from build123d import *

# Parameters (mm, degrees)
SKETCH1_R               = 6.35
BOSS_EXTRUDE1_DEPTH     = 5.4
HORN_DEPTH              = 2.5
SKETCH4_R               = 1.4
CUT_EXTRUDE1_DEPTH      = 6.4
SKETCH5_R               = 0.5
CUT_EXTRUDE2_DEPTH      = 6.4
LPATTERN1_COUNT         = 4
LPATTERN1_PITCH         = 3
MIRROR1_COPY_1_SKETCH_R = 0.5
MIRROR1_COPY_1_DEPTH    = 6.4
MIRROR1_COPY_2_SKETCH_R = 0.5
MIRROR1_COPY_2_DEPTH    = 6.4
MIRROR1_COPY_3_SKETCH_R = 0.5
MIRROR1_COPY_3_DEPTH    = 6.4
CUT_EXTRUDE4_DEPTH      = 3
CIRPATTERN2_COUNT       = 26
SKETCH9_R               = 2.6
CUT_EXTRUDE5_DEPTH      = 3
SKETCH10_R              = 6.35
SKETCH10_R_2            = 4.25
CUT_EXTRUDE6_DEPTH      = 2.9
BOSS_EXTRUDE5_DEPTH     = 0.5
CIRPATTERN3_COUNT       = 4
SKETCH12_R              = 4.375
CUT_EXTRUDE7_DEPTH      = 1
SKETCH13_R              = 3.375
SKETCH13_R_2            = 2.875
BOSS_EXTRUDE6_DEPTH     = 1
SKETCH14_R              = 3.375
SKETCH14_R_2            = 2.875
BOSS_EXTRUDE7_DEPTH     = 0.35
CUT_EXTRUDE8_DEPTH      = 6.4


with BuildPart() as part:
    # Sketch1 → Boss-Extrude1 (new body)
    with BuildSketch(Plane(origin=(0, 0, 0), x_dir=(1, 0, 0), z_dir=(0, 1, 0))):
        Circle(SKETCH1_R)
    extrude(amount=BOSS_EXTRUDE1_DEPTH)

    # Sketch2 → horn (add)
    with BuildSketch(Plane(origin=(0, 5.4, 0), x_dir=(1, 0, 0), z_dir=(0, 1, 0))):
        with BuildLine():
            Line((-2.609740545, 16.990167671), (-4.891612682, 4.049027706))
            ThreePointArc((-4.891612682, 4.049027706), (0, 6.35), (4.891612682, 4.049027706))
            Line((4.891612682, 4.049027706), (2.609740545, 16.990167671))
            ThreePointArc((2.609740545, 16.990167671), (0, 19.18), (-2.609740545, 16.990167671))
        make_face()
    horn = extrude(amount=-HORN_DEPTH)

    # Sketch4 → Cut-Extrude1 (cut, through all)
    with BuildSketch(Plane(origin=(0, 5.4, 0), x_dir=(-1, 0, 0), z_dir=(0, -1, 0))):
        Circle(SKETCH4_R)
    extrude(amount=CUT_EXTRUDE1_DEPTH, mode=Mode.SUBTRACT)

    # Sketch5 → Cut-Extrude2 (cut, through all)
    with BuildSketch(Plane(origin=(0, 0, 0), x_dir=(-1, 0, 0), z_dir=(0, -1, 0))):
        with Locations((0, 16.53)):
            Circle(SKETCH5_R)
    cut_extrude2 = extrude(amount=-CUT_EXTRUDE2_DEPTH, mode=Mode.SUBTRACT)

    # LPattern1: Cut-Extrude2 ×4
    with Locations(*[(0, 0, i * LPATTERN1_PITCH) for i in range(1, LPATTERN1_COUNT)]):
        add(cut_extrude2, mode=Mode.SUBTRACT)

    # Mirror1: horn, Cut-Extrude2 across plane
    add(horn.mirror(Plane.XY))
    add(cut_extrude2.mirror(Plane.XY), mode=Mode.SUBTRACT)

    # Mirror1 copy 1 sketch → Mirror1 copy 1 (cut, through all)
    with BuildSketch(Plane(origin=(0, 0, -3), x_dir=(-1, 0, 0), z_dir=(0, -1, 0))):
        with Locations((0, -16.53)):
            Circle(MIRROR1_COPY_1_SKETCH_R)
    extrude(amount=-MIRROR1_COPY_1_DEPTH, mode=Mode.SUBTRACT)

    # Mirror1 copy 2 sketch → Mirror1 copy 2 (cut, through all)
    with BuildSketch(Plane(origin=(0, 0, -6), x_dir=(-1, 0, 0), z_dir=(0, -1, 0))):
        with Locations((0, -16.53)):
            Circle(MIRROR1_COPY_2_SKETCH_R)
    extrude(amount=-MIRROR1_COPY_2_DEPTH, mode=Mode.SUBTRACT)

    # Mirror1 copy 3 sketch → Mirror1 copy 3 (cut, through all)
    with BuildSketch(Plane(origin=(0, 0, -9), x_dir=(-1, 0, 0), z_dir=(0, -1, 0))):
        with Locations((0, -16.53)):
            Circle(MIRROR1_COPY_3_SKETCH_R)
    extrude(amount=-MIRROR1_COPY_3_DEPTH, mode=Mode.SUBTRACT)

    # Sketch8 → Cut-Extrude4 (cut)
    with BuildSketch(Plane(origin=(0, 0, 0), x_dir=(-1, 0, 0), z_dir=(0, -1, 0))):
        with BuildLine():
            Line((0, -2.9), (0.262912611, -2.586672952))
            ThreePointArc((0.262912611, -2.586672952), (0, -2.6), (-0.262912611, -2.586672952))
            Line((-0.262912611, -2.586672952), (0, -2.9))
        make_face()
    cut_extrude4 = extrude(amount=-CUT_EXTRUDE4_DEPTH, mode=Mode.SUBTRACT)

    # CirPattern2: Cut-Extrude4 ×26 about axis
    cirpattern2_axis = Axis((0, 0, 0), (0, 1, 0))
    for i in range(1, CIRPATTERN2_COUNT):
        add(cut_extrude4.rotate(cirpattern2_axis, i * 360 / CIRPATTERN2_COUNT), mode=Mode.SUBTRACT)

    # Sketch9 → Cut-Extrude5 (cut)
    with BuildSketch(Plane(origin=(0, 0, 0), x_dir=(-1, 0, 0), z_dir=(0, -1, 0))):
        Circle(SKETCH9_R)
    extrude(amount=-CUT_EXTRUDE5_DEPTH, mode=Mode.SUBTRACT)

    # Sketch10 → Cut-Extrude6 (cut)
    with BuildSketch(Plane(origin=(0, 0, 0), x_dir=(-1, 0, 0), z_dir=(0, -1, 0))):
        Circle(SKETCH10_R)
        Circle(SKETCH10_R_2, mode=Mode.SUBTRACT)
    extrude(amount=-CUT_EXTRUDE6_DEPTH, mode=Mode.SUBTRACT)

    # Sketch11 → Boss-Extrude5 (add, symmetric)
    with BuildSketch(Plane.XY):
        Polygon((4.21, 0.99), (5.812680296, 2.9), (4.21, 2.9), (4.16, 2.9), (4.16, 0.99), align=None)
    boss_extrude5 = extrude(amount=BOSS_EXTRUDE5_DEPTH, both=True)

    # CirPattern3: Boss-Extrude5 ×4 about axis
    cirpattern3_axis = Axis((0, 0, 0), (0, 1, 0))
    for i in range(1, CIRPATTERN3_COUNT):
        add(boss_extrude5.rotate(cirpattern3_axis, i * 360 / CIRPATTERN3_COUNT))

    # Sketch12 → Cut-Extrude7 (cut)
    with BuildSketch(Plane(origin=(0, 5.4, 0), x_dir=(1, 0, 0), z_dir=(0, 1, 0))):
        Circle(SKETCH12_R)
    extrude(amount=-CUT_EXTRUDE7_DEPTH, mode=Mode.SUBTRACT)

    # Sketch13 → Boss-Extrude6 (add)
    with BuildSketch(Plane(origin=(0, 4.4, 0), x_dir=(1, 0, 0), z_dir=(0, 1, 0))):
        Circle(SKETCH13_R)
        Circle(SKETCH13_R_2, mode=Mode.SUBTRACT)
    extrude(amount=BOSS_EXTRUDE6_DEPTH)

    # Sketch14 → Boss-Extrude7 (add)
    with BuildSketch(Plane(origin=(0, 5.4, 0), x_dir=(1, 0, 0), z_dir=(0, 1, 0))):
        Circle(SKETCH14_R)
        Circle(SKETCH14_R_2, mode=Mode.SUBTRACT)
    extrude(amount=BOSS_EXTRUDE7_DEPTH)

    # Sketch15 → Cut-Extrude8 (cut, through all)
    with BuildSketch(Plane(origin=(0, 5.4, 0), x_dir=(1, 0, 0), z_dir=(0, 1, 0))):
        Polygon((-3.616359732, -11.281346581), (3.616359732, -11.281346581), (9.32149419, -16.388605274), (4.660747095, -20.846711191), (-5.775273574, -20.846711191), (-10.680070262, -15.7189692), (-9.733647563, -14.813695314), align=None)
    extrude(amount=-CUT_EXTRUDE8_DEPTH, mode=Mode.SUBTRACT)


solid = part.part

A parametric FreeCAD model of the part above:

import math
import FreeCAD as App
import Part
import Sketcher
from FreeCAD import Vector
Q = App.Units.Quantity


def add_polygon(sketch, points):
    """Adds a closed chain of lines whose ends are joined by coincident constraints."""
    first, n = sketch.GeometryCount, len(points)
    for a, b in zip(points, points[1:] + points[:1]):
        sketch.addGeometry(Part.LineSegment(App.Vector(*a, 0), App.Vector(*b, 0)), False)
    for i in range(n):
        sketch.addConstraint(Sketcher.Constraint("Coincident", first + i, 2, first + (i + 1) % n, 1))

doc = App.newDocument("Part")
body = doc.addObject("PartDesign::Body", "Body")

# Sketch on XZ plane
sketch1 = body.newObject("Sketcher::SketchObject", "Sketch")
sketch1.AttachmentSupport = (doc.getObject("XZ_Plane"), [""])
sketch1.MapMode = "FlatFace"
sketch1.addGeometry(Part.Circle(Vector(0, 0, 0), Vector(0, 0, 1), 6), False)
sketch1.addConstraint(Sketcher.Constraint("Coincident", 0, 3, -1, 1))
sketch1.addConstraint(Sketcher.Constraint("Diameter", 0, Q("12.7 mm")))
pad1 = body.newObject("PartDesign::Pad", "Pad")
pad1.Profile = sketch1
pad1.Length = 5.4
pad1.Reversed = True

# Sketch on XZ plane
sketch2 = body.newObject("Sketcher::SketchObject", "Sketch001")
sketch2.AttachmentSupport = (doc.getObject("XZ_Plane"), [""])
sketch2.MapMode = "FlatFace"
sketch2.AttachmentOffset = App.Placement(Vector(0, 0, -5.4), App.Rotation())
sketch2.addGeometry(Part.LineSegment(Vector(-2.6, -17, 0), Vector(-4.9, -4, 0)), False)
sketch2.addGeometry(Part.ArcOfCircle(Part.Circle(Vector(0, 0, 0), Vector(0, 0, 1), 6.3), math.radians(-140), math.radians(-40)), False)
sketch2.addGeometry(Part.LineSegment(Vector(4.9, -4, 0), Vector(2.6, -17, 0)), False)
sketch2.addGeometry(Part.ArcOfCircle(Part.Circle(Vector(0, -16.5, 0), Vector(0, 0, 1), 2.6), math.radians(-170), math.radians(-10)), False)
sketch2.addConstraint(Sketcher.Constraint("Coincident", 0, 2, 1, 1))
sketch2.addConstraint(Sketcher.Constraint("Coincident", 1, 2, 2, 1))
sketch2.addConstraint(Sketcher.Constraint("Tangent", 2, 2, 3, 2))
sketch2.addConstraint(Sketcher.Constraint("Tangent", 3, 1, 0, 1))
sketch2.addConstraint(Sketcher.Constraint("Coincident", 1, 3, -1, 1))
sketch2.addConstraint(Sketcher.Constraint("Symmetric", 2, 2, 3, 1, -2))
sketch2.addConstraint(Sketcher.Constraint("Angle", 0, Q("100 deg")))
sketch2.addConstraint(Sketcher.Constraint("Radius", 1, Q("6.35 mm")))
sketch2.addConstraint(Sketcher.Constraint("Radius", 3, Q("2.65 mm")))
sketch2.addConstraint(Sketcher.Constraint("DistanceY", 3, 3, -1, 1, Q("16.53 mm")))
pad2 = body.newObject("PartDesign::Pad", "Pad001")
pad2.Profile = sketch2
pad2.Length = 2.5

# Sketch on XZ plane
sketch3 = body.newObject("Sketcher::SketchObject", "Sketch002")
sketch3.AttachmentSupport = (doc.getObject("XZ_Plane"), [""])
sketch3.MapMode = "FlatFace"
sketch3.AttachmentOffset = App.Placement(Vector(0, 0, -5.4), App.Rotation())
sketch3.addGeometry(Part.Circle(Vector(0, 0, 0), Vector(0, 0, 1), 1.4), False)
sketch3.addConstraint(Sketcher.Constraint("Coincident", 0, 3, -1, 1))
sketch3.addConstraint(Sketcher.Constraint("Diameter", 0, Q("2.8 mm")))
pocket1 = body.newObject("PartDesign::Pocket", "Pocket")
pocket1.Profile = sketch3
pocket1.Type = "ThroughAll"
pocket1.Reversed = True

# Sketch on XZ plane
sketch4 = body.newObject("Sketcher::SketchObject", "Sketch003")
sketch4.AttachmentSupport = (doc.getObject("XZ_Plane"), [""])
sketch4.MapMode = "FlatFace"
sketch4.addGeometry(Part.Circle(Vector(0, -16.5, 0), Vector(0, 0, 1), 0.5), False)
sketch4.addConstraint(Sketcher.Constraint("PointOnObject", 0, 3, -2))
sketch4.addConstraint(Sketcher.Constraint("Diameter", 0, Q("1 mm")))
sketch4.addConstraint(Sketcher.Constraint("DistanceY", 0, 3, -1, 1, Q("16.53 mm")))
pocket2 = body.newObject("PartDesign::Pocket", "Pocket001")
pocket2.Profile = sketch4
pocket2.Type = "ThroughAll"
doc.recompute()

linearpattern = body.newObject("PartDesign::LinearPattern", "LinearPattern")
linearpattern.Originals = [pocket2]
linearpattern.Direction = (doc.getObject("Z_Axis"), [""])
linearpattern.Mode = "offset"
linearpattern.Offset = 3
linearpattern.Occurrences = 4
body.Tip = linearpattern
doc.recompute()

mirrored = body.newObject("PartDesign::Mirrored", "Mirrored")
mirrored.Originals = [pad2, pocket2]
mirrored.MirrorPlane = (doc.getObject("XY_Plane"), [""])
body.Tip = mirrored

# Sketch on XZ plane
sketch5 = body.newObject("Sketcher::SketchObject", "Sketch004")
sketch5.AttachmentSupport = (doc.getObject("XZ_Plane"), [""])
sketch5.MapMode = "FlatFace"
sketch5.addGeometry(Part.Circle(Vector(0, 13.5, 0), Vector(0, 0, 1), 0.5), False)
sketch5.addConstraint(Sketcher.Constraint("PointOnObject", 0, 3, -2))
sketch5.addConstraint(Sketcher.Constraint("Diameter", 0, Q("1 mm")))
sketch5.addConstraint(Sketcher.Constraint("DistanceY", -1, 1, 0, 3, Q("13.53 mm")))
pocket3 = body.newObject("PartDesign::Pocket", "Pocket002")
pocket3.Profile = sketch5
pocket3.Type = "ThroughAll"

# Sketch on XZ plane
sketch6 = body.newObject("Sketcher::SketchObject", "Sketch005")
sketch6.AttachmentSupport = (doc.getObject("XZ_Plane"), [""])
sketch6.MapMode = "FlatFace"
sketch6.addGeometry(Part.Circle(Vector(0, 10.5, 0), Vector(0, 0, 1), 0.5), False)
sketch6.addConstraint(Sketcher.Constraint("PointOnObject", 0, 3, -2))
sketch6.addConstraint(Sketcher.Constraint("Diameter", 0, Q("1 mm")))
sketch6.addConstraint(Sketcher.Constraint("DistanceY", -1, 1, 0, 3, Q("10.53 mm")))
pocket4 = body.newObject("PartDesign::Pocket", "Pocket003")
pocket4.Profile = sketch6
pocket4.Type = "ThroughAll"

# Sketch on XZ plane
sketch7 = body.newObject("Sketcher::SketchObject", "Sketch006")
sketch7.AttachmentSupport = (doc.getObject("XZ_Plane"), [""])
sketch7.MapMode = "FlatFace"
sketch7.addGeometry(Part.Circle(Vector(0, 7.5, 0), Vector(0, 0, 1), 0.5), False)
sketch7.addConstraint(Sketcher.Constraint("PointOnObject", 0, 3, -2))
sketch7.addConstraint(Sketcher.Constraint("Diameter", 0, Q("1 mm")))
sketch7.addConstraint(Sketcher.Constraint("DistanceY", -1, 1, 0, 3, Q("7.53 mm")))
pocket5 = body.newObject("PartDesign::Pocket", "Pocket004")
pocket5.Profile = sketch7
pocket5.Type = "ThroughAll"

# Sketch on XZ plane
sketch8 = body.newObject("Sketcher::SketchObject", "Sketch007")
sketch8.AttachmentSupport = (doc.getObject("XZ_Plane"), [""])
sketch8.MapMode = "FlatFace"
sketch8.addGeometry(Part.LineSegment(Vector(0, 2.9, 0), Vector(-0.26, 2.59, 0)), False)
sketch8.addGeometry(Part.ArcOfCircle(Part.Circle(Vector(0, 0, 0), Vector(0, 0, 1), 2.6), math.radians(84.2), math.radians(95.8)), False)
sketch8.addGeometry(Part.LineSegment(Vector(0.26, 2.59, 0), Vector(0, 2.9, 0)), False)
sketch8.addConstraint(Sketcher.Constraint("Coincident", 0, 2, 1, 2))
sketch8.addConstraint(Sketcher.Constraint("Coincident", 1, 1, 2, 1))
sketch8.addConstraint(Sketcher.Constraint("Coincident", 2, 2, 0, 1))
sketch8.addConstraint(Sketcher.Constraint("Coincident", 1, 3, -1, 1))
sketch8.addConstraint(Sketcher.Constraint("PointOnObject", 2, 2, -2))
sketch8.addConstraint(Sketcher.Constraint("Horizontal", 0, 2, 1, 1))
sketch8.addConstraint(Sketcher.Constraint("Radius", 1, Q("2.6 mm")))
sketch8.addConstraint(Sketcher.Constraint("Angle", 0, Q("-130 deg")))
sketch8.addConstraint(Sketcher.Constraint("DistanceY", -1, 1, 2, 2, Q("2.9 mm")))
pocket6 = body.newObject("PartDesign::Pocket", "Pocket005")
pocket6.Profile = sketch8
pocket6.Length = 3
doc.recompute()

polarpattern = body.newObject("PartDesign::PolarPattern", "PolarPattern")
polarpattern.Originals = [pocket6]
polarpattern.Axis = (doc.getObject("Y_Axis"), [""])
polarpattern.Angle = 360
polarpattern.Occurrences = 26
body.Tip = polarpattern

# Sketch on XZ plane
sketch9 = body.newObject("Sketcher::SketchObject", "Sketch008")
sketch9.AttachmentSupport = (doc.getObject("XZ_Plane"), [""])
sketch9.MapMode = "FlatFace"
sketch9.addGeometry(Part.Circle(Vector(0, 0, 0), Vector(0, 0, 1), 2.6), False)
sketch9.addConstraint(Sketcher.Constraint("Coincident", 0, 3, -1, 1))
sketch9.addConstraint(Sketcher.Constraint("Diameter", 0, Q("5.2 mm")))
pocket7 = body.newObject("PartDesign::Pocket", "Pocket006")
pocket7.Profile = sketch9
pocket7.Length = 3

# Sketch on XZ plane
sketch10 = body.newObject("Sketcher::SketchObject", "Sketch009")
sketch10.AttachmentSupport = (doc.getObject("XZ_Plane"), [""])
sketch10.MapMode = "FlatFace"
sketch10.addGeometry(Part.Circle(Vector(0, 0, 0), Vector(0, 0, 1), 6.3), False)
sketch10.addGeometry(Part.Circle(Vector(0, 0, 0), Vector(0, 0, 1), 4.2), False)
sketch10.addConstraint(Sketcher.Constraint("Coincident", 0, 3, -1, 1))
sketch10.addConstraint(Sketcher.Constraint("Coincident", 1, 3, -1, 1))
sketch10.addConstraint(Sketcher.Constraint("Diameter", 0, Q("12.7 mm")))
sketch10.addConstraint(Sketcher.Constraint("Diameter", 1, Q("8.5 mm")))
pocket8 = body.newObject("PartDesign::Pocket", "Pocket007")
pocket8.Profile = sketch10
pocket8.Length = 2.9

# Sketch on XY plane
sketch11 = body.newObject("Sketcher::SketchObject", "Sketch010")
sketch11.AttachmentSupport = (doc.getObject("XY_Plane"), [""])
sketch11.MapMode = "FlatFace"
add_polygon(sketch11, [(4.21, 0.99), (5.813, 2.9), (4.16, 2.9), (4.16, 0.99)])  # lines 0-3
sketch11.addConstraint(Sketcher.Constraint("Horizontal", 1))
sketch11.addConstraint(Sketcher.Constraint("Vertical", 2))
sketch11.addConstraint(Sketcher.Constraint("Horizontal", 3))
sketch11.addConstraint(Sketcher.Constraint("Angle", 0, Q("50 deg")))
sketch11.addConstraint(Sketcher.Constraint("DistanceX", 3, 1, 3, 2, Q("0.05 mm")))
sketch11.addConstraint(Sketcher.Constraint("DistanceY", 2, 2, 2, 1, Q("1.91 mm")))
sketch11.addConstraint(Sketcher.Constraint("DistanceY", -1, 1, 0, 2, Q("2.9 mm")))
sketch11.addConstraint(Sketcher.Constraint("DistanceX", -1, 1, 1, 2, Q("4.16 mm")))
pad3 = body.newObject("PartDesign::Pad", "Pad002")
pad3.Profile = sketch11
pad3.Length = 1
pad3.Midplane = True
doc.recompute()

polarpattern2 = body.newObject("PartDesign::PolarPattern", "PolarPattern001")
polarpattern2.Originals = [pad3]
polarpattern2.Axis = (doc.getObject("Y_Axis"), [""])
polarpattern2.Angle = 360
polarpattern2.Occurrences = 4
body.Tip = polarpattern2

# Sketch on XZ plane
sketch12 = body.newObject("Sketcher::SketchObject", "Sketch011")
sketch12.AttachmentSupport = (doc.getObject("XZ_Plane"), [""])
sketch12.MapMode = "FlatFace"
sketch12.AttachmentOffset = App.Placement(Vector(0, 0, -5.4), App.Rotation())
sketch12.addGeometry(Part.Circle(Vector(0, 0, 0), Vector(0, 0, 1), 4.4), False)
sketch12.addConstraint(Sketcher.Constraint("Coincident", 0, 3, -1, 1))
sketch12.addConstraint(Sketcher.Constraint("Diameter", 0, Q("8.75 mm")))
pocket9 = body.newObject("PartDesign::Pocket", "Pocket008")
pocket9.Profile = sketch12
pocket9.Length = 1
pocket9.Reversed = True

# Sketch on XZ plane
sketch13 = body.newObject("Sketcher::SketchObject", "Sketch012")
sketch13.AttachmentSupport = (doc.getObject("XZ_Plane"), [""])
sketch13.MapMode = "FlatFace"
sketch13.AttachmentOffset = App.Placement(Vector(0, 0, -4.4), App.Rotation())
sketch13.addGeometry(Part.Circle(Vector(0, 0, 0), Vector(0, 0, 1), 3.4), False)
sketch13.addGeometry(Part.Circle(Vector(0, 0, 0), Vector(0, 0, 1), 2.9), False)
sketch13.addConstraint(Sketcher.Constraint("Coincident", 0, 3, -1, 1))
sketch13.addConstraint(Sketcher.Constraint("Coincident", 1, 3, -1, 1))
sketch13.addConstraint(Sketcher.Constraint("Diameter", 0, Q("6.75 mm")))
sketch13.addConstraint(Sketcher.Constraint("Diameter", 1, Q("5.75 mm")))
pad4 = body.newObject("PartDesign::Pad", "Pad003")
pad4.Profile = sketch13
pad4.Length = 1
pad4.Reversed = True

# Sketch on XZ plane
sketch14 = body.newObject("Sketcher::SketchObject", "Sketch013")
sketch14.AttachmentSupport = (doc.getObject("XZ_Plane"), [""])
sketch14.MapMode = "FlatFace"
sketch14.AttachmentOffset = App.Placement(Vector(0, 0, -5.4), App.Rotation())
sketch14.addGeometry(Part.Circle(Vector(0, 0, 0), Vector(0, 0, 1), 3.4), False)
sketch14.addGeometry(Part.Circle(Vector(0, 0, 0), Vector(0, 0, 1), 2.9), False)
sketch14.addConstraint(Sketcher.Constraint("Coincident", 0, 3, -1, 1))
sketch14.addConstraint(Sketcher.Constraint("Coincident", 1, 3, -1, 1))
sketch14.addConstraint(Sketcher.Constraint("Diameter", 0, Q("6.75 mm")))
sketch14.addConstraint(Sketcher.Constraint("Diameter", 1, Q("5.75 mm")))
pad5 = body.newObject("PartDesign::Pad", "Pad004")
pad5.Profile = sketch14
pad5.Length = 0.35
pad5.Reversed = True

# Sketch on XZ plane
sketch15 = body.newObject("Sketcher::SketchObject", "Sketch014")
sketch15.AttachmentSupport = (doc.getObject("XZ_Plane"), [""])
sketch15.MapMode = "FlatFace"
sketch15.AttachmentOffset = App.Placement(Vector(0, 0, -5.4), App.Rotation())
add_polygon(sketch15, [(3.6, 11.3), (-3.6, 11.3), (-9.7, 14.8), (-10.7, 15.7), (-5.8, 20.8), (4.7, 20.8), (9.3, 16.4)])  # lines 0-6
sketch15.addConstraint(Sketcher.Constraint("Horizontal", 0))
sketch15.addConstraint(Sketcher.Constraint("Horizontal", 4))
sketch15.addConstraint(Sketcher.Constraint("Perpendicular", 2, 3))
sketch15.addConstraint(Sketcher.Constraint("Perpendicular", 3, 5))
sketch15.addConstraint(Sketcher.Constraint("Distance", 1, Q("7.063901 mm")))
sketch15.addConstraint(Sketcher.Constraint("DistanceX", 0, 2, 0, 1, Q("7.232719 mm")))
sketch15.addConstraint(Sketcher.Constraint("DistanceX", 4, 1, 4, 2, Q("10.436021 mm")))
sketch15.addConstraint(Sketcher.Constraint("Distance", 2, Q("1.30967 mm")))
sketch15.addConstraint(Sketcher.Constraint("DistanceX", 0, 2, -1, 1, Q("3.61636 mm")))
sketch15.addConstraint(Sketcher.Constraint("DistanceX", 2, 2, -1, 1, Q("10.68007 mm")))
sketch15.addConstraint(Sketcher.Constraint("DistanceY", -1, 1, 2, 2, Q("15.718969 mm")))
sketch15.addConstraint(Sketcher.Constraint("DistanceY", -1, 1, 3, 2, Q("20.846711 mm")))
sketch15.addConstraint(Sketcher.Constraint("DistanceY", 0, 2, 1, 2, Q("3.532349 mm")))
sketch15.addConstraint(Sketcher.Constraint("DistanceY", 0, 2, 5, 2, Q("5.107259 mm")))
pocket10 = body.newObject("PartDesign::Pocket", "Pocket009")
pocket10.Profile = sketch15
pocket10.Type = "ThroughAll"
pocket10.Reversed = True

doc.recompute()
